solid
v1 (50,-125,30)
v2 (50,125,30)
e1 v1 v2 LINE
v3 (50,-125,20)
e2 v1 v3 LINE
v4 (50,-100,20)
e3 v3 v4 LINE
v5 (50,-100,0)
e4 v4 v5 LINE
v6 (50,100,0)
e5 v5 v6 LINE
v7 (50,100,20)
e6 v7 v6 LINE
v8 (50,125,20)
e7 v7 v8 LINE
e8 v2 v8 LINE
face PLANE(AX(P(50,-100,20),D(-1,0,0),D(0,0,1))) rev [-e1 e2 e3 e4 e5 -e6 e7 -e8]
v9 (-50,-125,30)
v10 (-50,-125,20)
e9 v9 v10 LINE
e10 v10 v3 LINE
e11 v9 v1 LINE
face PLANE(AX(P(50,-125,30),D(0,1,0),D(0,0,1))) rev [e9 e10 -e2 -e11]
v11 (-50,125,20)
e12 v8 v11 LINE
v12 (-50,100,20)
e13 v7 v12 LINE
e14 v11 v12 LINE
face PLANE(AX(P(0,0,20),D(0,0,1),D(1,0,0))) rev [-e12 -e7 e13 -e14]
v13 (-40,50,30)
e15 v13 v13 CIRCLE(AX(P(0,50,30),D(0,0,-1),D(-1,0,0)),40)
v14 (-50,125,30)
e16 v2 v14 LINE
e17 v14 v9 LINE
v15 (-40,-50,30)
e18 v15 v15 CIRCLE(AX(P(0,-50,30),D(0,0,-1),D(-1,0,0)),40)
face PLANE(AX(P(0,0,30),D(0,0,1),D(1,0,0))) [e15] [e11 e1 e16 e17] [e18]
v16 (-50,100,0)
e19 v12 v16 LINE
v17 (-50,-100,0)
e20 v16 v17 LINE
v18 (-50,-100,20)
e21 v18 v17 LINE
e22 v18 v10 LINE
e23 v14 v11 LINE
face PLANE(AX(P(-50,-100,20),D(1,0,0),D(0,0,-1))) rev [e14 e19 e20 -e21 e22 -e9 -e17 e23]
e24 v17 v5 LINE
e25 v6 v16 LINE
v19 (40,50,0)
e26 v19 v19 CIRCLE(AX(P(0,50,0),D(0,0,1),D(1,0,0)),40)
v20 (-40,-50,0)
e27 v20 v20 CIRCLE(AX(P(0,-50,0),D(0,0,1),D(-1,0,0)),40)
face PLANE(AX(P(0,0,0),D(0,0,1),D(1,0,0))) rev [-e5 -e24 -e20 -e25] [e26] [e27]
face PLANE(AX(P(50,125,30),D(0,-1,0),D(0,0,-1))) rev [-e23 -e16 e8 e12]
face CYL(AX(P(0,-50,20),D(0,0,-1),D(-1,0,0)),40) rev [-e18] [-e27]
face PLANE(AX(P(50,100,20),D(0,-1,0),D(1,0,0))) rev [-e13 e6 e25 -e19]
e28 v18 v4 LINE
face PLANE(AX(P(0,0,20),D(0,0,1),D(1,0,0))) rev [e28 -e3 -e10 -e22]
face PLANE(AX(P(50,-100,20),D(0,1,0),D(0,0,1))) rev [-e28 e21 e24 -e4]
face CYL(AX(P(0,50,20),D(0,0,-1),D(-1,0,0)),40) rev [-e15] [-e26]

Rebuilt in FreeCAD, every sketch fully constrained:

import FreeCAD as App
import Part
import Sketcher

doc = App.newDocument("Part")
body = doc.addObject("PartDesign::Body", "Body")

# Sketch on XY plane
sketch1 = body.newObject("Sketcher::SketchObject", "Sketch")
sketch1.AttachmentSupport = (doc.getObject("XY_Plane"), [""])
sketch1.MapMode = "FlatFace"
sketch1.addGeometry([
    Part.LineSegment(App.Vector(-50, 100, 0), App.Vector(-50, -100, 0)),  # 0
    Part.LineSegment(App.Vector(-50, -100, 0), App.Vector(50, -100, 0)),  # 1
    Part.LineSegment(App.Vector(50, -100, 0), App.Vector(50, 100, 0)),  # 2
    Part.LineSegment(App.Vector(50, 100, 0), App.Vector(-50, 100, 0)),  # 3
    Part.Circle(App.Vector(0, -50, 0), App.Vector(0, 0, 1), 40),  # 4
    Part.Circle(App.Vector(0, 50, 0), App.Vector(0, 0, 1), 40),  # 5
], False)
sketch1.addConstraint([
    Sketcher.Constraint("Coincident", 0, 2, 1, 1),
    Sketcher.Constraint("Coincident", 1, 2, 2, 1),
    Sketcher.Constraint("Coincident", 2, 2, 3, 1),
    Sketcher.Constraint("Coincident", 3, 2, 0, 1),
    Sketcher.Constraint("Vertical", 0),
    Sketcher.Constraint("Horizontal", 1),
    Sketcher.Constraint("Vertical", 2),
    Sketcher.Constraint("Horizontal", 3),
    Sketcher.Constraint("Equal", 4, 5),
    Sketcher.Constraint("Symmetric", 4, 3, 5, 3, -1, 1),
    Sketcher.Constraint("Symmetric", 0, 2, 2, 2, -1, 1),
    Sketcher.Constraint("PointOnObject", 4, 3, -2),
    Sketcher.Constraint("Diameter", 4, 80.0),
    Sketcher.Constraint("DistanceX", 1, 1, 1, 2, 100.0),
    Sketcher.Constraint("DistanceY", 0, 2, 0, 1, 200.0),
    Sketcher.Constraint("DistanceY", 4, 3, -1, 1, 50.0),
])
pad1 = body.newObject("PartDesign::Pad", "Pad")
pad1.Profile = sketch1
pad1.Length = 20

# Sketch on XY plane
sketch2 = body.newObject("Sketcher::SketchObject", "Sketch001")
sketch2.AttachmentSupport = (doc.getObject("XY_Plane"), [""])
sketch2.MapMode = "FlatFace"
sketch2.AttachmentOffset = App.Placement(App.Vector(0, 0, 20), App.Rotation())
sketch2.addGeometry([
    Part.LineSegment(App.Vector(-50, 125, 0), App.Vector(-50, -125, 0)),
    Part.LineSegment(App.Vector(-50, -125, 0), App.Vector(50, -125, 0)),
    Part.LineSegment(App.Vector(50, -125, 0), App.Vector(50, 125, 0)),
    Part.LineSegment(App.Vector(50, 125, 0), App.Vector(-50, 125, 0)),
], False)
sketch2.addConstraint([
    Sketcher.Constraint("Coincident", 0, 2, 1, 1),
    Sketcher.Constraint("Coincident", 1, 2, 2, 1),
    Sketcher.Constraint("Coincident", 2, 2, 3, 1),
    Sketcher.Constraint("Coincident", 3, 2, 0, 1),
    Sketcher.Constraint("Vertical", 0),
    Sketcher.Constraint("Horizontal", 1),
    Sketcher.Constraint("Vertical", 2),
    Sketcher.Constraint("Horizontal", 3),
    Sketcher.Constraint("Symmetric", 0, 2, 2, 2, -1, 1),
    Sketcher.Constraint("DistanceX", 1, 1, 1, 2, 100.0),
    Sketcher.Constraint("DistanceY", 0, 2, 0, 1, 250.0),
])
pad2 = body.newObject("PartDesign::Pad", "Pad001")
pad2.Profile = sketch2
pad2.Length = 10

# Sketch on XY plane
sketch3 = body.newObject("Sketcher::SketchObject", "Sketch002")
sketch3.AttachmentSupport = (doc.getObject("XY_Plane"), [""])
sketch3.MapMode = "FlatFace"
sketch3.AttachmentOffset = App.Placement(App.Vector(0, 0, 20), App.Rotation())
sketch3.addGeometry([
    Part.Circle(App.Vector(0, 50, 0), App.Vector(0, 0, 1), 40),
    Part.Circle(App.Vector(0, -50, 0), App.Vector(0, 0, 1), 40),
], False)
sketch3.addConstraint([
    Sketcher.Constraint("Equal", 0, 1),
    Sketcher.Constraint("Symmetric", 0, 3, 1, 3, -1, 1),
    Sketcher.Constraint("PointOnObject", 0, 3, -2),
    Sketcher.Constraint("Diameter", 0, 80.0),
    Sketcher.Constraint("DistanceY", -1, 1, 0, 3, 50.0),
])
pocket1 = body.newObject("PartDesign::Pocket", "Pocket")
pocket1.Profile = sketch3
pocket1.Type = "ThroughAll"
pocket1.Reversed = True

doc.recompute()
